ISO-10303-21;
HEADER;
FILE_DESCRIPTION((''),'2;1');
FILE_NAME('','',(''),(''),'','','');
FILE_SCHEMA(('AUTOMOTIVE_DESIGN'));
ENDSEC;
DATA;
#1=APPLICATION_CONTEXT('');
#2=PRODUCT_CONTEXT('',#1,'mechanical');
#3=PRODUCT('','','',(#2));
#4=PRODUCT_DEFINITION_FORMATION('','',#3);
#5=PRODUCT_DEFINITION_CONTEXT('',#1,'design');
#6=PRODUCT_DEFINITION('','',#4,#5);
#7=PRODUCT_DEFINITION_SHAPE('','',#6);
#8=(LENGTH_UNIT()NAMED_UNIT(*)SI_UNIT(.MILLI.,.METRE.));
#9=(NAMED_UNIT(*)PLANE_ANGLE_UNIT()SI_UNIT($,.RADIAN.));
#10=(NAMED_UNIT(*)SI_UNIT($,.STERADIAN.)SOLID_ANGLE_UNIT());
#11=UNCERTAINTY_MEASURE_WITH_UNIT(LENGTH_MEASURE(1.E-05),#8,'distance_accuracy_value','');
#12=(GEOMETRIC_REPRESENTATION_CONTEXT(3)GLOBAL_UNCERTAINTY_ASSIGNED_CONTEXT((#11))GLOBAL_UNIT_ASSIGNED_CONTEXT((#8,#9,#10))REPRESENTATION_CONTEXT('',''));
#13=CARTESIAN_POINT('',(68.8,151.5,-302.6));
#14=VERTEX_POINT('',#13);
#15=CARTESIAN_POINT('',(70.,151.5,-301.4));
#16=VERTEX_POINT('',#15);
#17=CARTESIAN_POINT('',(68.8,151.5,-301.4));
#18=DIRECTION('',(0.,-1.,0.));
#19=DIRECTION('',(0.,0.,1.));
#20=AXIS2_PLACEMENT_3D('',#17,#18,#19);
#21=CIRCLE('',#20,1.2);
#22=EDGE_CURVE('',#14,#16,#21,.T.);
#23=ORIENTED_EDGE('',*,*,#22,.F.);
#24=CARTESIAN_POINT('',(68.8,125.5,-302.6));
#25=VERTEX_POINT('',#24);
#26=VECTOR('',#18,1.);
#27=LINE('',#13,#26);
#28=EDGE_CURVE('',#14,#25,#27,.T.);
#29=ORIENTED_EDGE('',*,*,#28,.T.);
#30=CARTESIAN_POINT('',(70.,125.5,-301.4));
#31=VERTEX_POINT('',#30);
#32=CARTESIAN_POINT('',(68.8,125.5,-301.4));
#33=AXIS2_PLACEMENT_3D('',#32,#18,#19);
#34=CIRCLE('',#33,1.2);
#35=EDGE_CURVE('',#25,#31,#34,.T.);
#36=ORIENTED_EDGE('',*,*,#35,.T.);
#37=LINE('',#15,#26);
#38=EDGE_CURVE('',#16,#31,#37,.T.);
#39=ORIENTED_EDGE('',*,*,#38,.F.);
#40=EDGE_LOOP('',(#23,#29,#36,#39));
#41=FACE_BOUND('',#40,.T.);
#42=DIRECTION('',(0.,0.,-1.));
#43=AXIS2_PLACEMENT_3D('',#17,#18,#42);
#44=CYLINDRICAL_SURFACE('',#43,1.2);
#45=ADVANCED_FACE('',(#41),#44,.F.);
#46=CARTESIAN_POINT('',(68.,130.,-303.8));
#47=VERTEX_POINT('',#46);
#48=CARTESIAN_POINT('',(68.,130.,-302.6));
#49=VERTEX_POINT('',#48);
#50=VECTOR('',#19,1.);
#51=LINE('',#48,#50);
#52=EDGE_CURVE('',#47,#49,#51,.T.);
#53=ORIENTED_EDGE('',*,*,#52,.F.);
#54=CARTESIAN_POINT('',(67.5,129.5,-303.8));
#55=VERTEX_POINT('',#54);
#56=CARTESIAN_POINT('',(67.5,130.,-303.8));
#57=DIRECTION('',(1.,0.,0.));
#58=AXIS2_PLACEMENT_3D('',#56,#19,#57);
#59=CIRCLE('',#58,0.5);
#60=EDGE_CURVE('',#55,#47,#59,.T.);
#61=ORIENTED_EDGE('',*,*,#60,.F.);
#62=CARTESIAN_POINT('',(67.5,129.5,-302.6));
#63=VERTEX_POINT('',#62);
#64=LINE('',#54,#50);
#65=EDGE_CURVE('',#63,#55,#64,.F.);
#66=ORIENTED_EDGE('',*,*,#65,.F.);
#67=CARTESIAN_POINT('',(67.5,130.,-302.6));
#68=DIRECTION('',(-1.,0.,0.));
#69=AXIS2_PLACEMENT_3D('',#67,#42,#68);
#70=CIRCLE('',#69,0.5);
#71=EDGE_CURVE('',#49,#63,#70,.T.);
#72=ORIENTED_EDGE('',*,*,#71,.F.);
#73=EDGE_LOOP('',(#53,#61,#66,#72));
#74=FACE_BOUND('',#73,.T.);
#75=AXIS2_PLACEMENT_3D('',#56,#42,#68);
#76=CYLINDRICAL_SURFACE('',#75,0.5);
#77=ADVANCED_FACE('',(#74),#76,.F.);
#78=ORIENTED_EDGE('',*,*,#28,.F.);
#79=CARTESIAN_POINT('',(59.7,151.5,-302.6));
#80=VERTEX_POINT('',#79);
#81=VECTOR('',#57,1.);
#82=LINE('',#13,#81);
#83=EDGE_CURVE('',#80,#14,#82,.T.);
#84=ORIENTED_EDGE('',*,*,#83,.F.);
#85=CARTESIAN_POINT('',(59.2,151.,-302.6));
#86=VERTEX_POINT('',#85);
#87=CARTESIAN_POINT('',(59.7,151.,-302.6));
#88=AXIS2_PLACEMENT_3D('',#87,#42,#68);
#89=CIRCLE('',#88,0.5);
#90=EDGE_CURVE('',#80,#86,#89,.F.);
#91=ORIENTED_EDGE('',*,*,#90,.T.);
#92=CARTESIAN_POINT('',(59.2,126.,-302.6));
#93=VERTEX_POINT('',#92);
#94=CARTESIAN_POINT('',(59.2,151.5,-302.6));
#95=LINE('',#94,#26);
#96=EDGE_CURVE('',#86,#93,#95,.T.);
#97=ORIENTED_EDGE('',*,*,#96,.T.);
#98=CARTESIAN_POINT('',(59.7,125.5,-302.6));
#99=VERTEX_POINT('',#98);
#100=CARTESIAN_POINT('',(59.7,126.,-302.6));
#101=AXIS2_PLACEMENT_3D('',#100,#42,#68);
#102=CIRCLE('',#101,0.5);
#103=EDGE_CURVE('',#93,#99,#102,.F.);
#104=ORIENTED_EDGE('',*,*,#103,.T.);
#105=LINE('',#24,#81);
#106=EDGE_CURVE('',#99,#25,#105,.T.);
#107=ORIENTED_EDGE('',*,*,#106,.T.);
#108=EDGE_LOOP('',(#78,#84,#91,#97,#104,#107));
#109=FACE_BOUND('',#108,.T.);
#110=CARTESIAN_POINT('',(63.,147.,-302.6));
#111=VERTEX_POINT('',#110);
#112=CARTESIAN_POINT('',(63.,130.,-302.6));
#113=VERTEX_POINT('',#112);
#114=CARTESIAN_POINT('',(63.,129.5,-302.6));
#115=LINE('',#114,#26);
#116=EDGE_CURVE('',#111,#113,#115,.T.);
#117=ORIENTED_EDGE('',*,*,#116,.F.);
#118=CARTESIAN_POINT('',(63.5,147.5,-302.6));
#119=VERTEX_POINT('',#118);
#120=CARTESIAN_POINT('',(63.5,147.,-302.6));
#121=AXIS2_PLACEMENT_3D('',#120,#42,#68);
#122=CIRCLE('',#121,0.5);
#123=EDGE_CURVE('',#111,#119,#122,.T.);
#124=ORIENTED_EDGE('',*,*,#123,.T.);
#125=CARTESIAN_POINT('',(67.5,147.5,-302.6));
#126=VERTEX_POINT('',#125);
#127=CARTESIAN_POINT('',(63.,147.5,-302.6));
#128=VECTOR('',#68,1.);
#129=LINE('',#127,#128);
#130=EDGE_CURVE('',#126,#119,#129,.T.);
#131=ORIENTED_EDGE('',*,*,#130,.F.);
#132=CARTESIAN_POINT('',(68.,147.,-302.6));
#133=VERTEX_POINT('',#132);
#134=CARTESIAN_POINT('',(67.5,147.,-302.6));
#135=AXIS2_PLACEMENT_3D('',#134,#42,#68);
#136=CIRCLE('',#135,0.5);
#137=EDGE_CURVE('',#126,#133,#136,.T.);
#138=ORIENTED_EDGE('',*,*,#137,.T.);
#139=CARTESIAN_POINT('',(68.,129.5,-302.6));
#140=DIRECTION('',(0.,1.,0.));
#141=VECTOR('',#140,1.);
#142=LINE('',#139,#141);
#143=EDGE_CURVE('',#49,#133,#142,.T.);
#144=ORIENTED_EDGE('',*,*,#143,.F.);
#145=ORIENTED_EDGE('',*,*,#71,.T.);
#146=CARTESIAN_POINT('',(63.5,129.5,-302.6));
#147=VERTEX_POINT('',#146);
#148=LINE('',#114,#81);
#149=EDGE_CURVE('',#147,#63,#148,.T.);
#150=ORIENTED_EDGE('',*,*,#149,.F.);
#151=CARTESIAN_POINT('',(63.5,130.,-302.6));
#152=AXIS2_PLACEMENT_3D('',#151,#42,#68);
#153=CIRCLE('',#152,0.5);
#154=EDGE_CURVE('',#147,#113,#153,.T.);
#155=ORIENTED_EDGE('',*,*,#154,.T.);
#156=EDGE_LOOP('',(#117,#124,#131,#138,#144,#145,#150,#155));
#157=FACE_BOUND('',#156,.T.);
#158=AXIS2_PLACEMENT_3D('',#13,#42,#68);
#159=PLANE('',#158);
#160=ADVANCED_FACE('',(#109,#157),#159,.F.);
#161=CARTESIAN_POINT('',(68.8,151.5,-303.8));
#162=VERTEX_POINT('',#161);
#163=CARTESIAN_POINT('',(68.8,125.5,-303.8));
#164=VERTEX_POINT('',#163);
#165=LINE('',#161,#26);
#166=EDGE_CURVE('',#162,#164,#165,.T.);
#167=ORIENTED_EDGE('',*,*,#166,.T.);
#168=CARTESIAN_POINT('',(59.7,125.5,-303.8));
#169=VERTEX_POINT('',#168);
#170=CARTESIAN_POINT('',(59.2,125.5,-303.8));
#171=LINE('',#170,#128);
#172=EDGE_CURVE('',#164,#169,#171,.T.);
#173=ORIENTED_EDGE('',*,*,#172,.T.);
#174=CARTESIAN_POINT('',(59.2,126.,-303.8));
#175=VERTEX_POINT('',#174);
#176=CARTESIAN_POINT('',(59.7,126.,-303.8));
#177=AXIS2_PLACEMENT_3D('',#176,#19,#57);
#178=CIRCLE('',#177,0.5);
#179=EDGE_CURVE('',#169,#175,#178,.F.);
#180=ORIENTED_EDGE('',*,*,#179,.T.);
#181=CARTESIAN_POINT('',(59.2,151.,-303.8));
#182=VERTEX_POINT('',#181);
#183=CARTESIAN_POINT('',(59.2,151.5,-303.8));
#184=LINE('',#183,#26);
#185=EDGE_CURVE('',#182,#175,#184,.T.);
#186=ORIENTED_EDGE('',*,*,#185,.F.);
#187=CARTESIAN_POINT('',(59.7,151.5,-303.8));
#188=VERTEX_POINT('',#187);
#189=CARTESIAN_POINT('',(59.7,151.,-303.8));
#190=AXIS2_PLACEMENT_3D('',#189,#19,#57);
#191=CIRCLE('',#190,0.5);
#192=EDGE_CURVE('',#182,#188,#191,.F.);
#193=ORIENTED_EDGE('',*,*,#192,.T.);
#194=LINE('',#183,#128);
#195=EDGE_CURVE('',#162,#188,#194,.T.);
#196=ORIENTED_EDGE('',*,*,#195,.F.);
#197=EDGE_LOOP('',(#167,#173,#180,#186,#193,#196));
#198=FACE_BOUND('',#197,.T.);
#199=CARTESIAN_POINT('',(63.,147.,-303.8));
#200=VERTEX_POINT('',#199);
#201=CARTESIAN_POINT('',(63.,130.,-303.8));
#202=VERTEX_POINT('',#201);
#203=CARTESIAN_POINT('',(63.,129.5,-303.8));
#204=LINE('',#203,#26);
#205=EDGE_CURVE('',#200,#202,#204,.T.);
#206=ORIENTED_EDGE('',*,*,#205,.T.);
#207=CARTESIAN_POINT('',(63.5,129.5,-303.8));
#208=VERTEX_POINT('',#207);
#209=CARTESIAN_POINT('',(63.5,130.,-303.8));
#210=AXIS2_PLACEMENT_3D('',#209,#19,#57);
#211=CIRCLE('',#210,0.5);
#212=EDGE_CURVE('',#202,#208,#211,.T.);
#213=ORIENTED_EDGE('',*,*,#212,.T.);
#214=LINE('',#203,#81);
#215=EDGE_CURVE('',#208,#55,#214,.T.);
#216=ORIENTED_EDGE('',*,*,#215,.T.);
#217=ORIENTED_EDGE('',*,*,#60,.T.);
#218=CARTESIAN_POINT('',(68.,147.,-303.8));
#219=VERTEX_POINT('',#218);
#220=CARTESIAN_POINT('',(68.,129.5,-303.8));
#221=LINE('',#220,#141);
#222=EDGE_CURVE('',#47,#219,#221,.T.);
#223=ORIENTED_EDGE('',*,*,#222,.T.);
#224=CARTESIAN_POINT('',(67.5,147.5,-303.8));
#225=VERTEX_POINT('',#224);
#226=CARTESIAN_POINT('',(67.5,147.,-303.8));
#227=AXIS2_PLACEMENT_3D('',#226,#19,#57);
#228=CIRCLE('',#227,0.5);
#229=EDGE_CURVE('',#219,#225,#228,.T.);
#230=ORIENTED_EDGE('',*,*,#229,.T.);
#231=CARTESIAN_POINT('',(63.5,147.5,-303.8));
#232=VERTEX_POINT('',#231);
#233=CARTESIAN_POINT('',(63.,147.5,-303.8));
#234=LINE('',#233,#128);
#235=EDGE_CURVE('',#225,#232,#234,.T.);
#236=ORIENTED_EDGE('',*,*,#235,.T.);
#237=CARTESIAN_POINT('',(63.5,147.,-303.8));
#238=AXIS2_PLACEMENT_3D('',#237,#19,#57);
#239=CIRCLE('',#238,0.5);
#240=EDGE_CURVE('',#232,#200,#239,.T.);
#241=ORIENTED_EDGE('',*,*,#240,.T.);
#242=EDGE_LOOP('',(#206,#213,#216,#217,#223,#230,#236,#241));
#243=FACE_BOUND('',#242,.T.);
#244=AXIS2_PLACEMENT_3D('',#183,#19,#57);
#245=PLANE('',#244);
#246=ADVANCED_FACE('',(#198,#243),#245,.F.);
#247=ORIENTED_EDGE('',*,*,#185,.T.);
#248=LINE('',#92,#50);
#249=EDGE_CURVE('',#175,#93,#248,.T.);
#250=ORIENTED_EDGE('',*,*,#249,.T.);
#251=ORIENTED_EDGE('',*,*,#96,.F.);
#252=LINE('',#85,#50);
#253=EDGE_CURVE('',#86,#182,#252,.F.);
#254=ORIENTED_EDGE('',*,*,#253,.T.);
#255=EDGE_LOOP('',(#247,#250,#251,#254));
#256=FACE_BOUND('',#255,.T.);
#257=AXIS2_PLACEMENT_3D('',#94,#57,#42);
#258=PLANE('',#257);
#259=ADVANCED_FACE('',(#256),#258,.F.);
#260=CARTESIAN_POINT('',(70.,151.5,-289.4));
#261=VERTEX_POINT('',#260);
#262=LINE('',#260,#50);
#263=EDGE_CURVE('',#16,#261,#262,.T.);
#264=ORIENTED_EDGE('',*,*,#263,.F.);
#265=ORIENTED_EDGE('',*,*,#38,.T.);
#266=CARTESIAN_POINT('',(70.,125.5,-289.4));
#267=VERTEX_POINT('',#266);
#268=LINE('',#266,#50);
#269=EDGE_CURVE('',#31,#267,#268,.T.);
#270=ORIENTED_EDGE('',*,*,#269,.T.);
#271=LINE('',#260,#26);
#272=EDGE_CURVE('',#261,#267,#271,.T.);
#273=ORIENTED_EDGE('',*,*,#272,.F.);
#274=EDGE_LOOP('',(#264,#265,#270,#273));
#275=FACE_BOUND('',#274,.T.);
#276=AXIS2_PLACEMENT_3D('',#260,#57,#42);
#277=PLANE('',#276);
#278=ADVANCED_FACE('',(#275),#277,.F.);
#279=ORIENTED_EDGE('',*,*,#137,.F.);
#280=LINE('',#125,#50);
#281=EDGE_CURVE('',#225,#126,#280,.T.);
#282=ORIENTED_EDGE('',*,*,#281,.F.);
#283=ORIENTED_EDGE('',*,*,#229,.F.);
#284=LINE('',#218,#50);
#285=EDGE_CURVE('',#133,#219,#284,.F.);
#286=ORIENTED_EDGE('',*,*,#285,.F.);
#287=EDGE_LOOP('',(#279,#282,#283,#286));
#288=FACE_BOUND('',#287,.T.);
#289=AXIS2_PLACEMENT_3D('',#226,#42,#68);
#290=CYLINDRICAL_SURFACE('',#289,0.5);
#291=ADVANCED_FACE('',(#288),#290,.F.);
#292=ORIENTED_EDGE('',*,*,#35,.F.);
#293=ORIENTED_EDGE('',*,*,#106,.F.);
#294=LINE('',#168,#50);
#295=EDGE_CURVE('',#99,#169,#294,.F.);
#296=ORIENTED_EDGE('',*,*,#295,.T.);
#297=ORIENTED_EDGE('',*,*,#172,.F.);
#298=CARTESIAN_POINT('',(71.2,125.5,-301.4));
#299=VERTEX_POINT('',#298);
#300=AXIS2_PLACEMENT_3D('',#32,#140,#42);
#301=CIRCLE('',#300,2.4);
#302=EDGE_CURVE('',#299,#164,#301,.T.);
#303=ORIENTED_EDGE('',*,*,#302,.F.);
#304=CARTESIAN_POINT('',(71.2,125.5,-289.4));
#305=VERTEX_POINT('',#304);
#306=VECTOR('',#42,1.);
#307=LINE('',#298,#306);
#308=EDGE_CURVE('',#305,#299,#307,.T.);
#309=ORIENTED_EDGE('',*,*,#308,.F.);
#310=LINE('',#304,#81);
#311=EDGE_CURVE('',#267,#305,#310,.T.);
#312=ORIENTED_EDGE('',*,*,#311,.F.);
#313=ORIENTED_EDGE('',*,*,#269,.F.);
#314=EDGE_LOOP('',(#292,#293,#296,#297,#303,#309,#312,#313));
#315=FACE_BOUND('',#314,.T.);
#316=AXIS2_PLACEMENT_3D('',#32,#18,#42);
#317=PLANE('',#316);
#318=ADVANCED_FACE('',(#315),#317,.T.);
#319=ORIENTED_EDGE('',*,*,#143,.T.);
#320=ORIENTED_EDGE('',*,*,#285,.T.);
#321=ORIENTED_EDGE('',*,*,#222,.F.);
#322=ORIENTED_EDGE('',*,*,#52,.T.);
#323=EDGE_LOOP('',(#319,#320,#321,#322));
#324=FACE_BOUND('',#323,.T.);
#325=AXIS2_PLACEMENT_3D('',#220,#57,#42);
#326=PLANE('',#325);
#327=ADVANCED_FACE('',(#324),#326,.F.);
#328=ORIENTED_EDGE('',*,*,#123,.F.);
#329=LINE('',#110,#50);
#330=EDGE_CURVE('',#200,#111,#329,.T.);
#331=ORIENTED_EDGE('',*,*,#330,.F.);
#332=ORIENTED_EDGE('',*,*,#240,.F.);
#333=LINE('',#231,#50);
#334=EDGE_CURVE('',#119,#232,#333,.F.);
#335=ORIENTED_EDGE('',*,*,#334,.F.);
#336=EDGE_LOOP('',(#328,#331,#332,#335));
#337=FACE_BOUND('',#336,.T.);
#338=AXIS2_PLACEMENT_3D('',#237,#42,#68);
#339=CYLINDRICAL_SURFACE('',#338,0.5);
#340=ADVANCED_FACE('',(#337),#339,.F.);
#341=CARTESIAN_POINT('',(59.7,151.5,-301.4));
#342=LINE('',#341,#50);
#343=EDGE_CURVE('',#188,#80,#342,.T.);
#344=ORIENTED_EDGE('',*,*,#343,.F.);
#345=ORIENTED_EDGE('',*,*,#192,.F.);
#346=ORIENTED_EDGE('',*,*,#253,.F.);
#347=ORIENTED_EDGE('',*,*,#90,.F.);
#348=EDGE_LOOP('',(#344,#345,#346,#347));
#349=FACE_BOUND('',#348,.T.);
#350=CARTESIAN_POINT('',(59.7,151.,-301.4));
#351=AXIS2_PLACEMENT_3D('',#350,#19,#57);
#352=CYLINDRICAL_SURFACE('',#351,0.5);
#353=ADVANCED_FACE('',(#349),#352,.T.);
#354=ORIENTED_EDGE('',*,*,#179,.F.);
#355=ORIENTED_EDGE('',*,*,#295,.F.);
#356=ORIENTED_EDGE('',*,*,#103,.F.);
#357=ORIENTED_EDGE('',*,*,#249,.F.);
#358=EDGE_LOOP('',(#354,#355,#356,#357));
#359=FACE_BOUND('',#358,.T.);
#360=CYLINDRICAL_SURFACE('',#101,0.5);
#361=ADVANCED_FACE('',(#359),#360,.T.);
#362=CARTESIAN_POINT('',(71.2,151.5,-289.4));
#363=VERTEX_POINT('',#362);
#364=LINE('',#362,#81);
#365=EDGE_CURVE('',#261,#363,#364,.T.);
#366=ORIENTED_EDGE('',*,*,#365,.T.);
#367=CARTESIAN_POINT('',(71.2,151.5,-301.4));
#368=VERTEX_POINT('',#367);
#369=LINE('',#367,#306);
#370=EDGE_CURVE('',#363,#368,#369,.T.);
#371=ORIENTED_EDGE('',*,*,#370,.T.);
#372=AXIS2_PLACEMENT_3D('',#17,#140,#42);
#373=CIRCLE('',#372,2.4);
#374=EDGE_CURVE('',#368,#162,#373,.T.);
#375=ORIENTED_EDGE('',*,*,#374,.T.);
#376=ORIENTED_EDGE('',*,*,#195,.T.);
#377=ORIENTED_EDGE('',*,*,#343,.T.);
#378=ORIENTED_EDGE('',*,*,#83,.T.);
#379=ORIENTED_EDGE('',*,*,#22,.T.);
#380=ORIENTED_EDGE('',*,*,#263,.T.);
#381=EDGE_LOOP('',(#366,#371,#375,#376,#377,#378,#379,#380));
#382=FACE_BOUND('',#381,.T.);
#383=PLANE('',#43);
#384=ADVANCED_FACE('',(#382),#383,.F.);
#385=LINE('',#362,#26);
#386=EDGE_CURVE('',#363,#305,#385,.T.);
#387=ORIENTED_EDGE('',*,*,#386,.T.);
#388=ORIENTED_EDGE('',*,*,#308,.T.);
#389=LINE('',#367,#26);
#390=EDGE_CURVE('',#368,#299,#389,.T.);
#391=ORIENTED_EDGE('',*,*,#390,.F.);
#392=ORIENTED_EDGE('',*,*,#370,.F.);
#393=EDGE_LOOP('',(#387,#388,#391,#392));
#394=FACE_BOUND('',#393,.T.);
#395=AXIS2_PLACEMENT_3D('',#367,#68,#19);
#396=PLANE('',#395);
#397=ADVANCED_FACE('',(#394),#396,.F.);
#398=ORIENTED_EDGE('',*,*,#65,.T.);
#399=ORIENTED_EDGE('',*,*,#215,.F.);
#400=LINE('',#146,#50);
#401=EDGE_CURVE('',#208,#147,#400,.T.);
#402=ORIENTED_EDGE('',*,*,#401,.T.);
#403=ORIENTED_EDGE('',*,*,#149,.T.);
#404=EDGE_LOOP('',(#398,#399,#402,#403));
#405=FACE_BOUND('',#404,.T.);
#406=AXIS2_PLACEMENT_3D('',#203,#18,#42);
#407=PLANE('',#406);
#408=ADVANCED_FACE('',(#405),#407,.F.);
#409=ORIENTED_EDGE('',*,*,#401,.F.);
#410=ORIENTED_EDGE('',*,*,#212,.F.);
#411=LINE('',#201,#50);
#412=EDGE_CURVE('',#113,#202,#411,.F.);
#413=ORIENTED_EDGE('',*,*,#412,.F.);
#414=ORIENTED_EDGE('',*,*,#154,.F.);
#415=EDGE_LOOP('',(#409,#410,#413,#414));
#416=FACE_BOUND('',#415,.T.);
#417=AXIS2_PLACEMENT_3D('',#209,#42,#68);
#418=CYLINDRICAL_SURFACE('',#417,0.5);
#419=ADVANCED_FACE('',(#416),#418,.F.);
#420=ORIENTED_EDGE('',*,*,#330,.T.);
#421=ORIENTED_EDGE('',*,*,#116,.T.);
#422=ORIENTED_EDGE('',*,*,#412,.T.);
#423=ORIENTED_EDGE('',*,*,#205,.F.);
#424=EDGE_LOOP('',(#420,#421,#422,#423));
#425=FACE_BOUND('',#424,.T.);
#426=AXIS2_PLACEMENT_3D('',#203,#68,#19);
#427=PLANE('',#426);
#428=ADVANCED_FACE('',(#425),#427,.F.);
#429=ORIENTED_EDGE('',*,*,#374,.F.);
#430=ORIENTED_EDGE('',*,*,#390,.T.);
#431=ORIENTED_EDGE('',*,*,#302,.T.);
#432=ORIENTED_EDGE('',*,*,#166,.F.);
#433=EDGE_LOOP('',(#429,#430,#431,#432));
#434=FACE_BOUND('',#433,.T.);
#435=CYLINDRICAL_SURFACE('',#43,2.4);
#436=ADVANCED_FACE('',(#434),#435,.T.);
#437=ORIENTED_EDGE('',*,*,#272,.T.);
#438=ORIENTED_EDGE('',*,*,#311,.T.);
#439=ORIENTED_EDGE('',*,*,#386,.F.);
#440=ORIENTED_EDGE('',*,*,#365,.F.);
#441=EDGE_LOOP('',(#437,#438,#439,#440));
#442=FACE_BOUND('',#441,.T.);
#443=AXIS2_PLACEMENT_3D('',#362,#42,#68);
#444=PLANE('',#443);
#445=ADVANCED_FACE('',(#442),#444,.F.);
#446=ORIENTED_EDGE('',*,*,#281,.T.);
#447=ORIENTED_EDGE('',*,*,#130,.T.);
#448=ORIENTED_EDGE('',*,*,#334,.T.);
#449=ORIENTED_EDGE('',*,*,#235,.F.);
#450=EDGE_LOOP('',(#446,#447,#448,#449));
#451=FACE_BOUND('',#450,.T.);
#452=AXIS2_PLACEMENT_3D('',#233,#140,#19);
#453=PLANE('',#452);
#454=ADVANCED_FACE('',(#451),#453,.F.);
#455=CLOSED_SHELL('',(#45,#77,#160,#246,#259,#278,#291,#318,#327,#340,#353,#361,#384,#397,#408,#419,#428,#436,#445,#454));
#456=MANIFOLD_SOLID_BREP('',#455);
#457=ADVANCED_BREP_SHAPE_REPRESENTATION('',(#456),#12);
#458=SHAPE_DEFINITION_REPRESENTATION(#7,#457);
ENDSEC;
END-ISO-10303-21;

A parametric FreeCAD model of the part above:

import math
import FreeCAD as App
import Part
import Sketcher
Q = App.Units.Quantity


def edges_at(feature, points):
    """Names of the edges that pass closest to the given points."""
    edges = feature.Shape.Edges
    near = lambda p: min(range(len(edges)), key=lambda i: edges[i].distToShape(Part.Vertex(*p))[0])
    return sorted({f"Edge{near(p) + 1}" for p in points})


def add_polygon(sketch, points):
    """Adds a closed chain of lines whose ends are joined by coincident constraints."""
    first, n = sketch.GeometryCount, len(points)
    for a, b in zip(points, points[1:] + points[:1]):
        sketch.addGeometry(Part.LineSegment(App.Vector(*a, 0), App.Vector(*b, 0)), False)
    for i in range(n):
        sketch.addConstraint(Sketcher.Constraint("Coincident", first + i, 2, first + (i + 1) % n, 1))

doc = App.newDocument("Part")
body = doc.addObject("PartDesign::Body", "Body")

sketch1 = body.newObject("Sketcher::SketchObject", "Sketch")
sketch1.AttachmentSupport = (doc.getObject("XZ_Plane"), [""])
sketch1.MapMode = "FlatFace"
sketch1.AttachmentOffset = App.Placement(App.Vector(0, 0, -125.5), App.Rotation())
sketch1.addGeometry(Part.LineSegment(App.Vector(68.8, -303.8, 0), App.Vector(59.2, -303.8, 0)), False)
sketch1.addGeometry(Part.LineSegment(App.Vector(59.2, -303.8, 0), App.Vector(59.2, -302.6, 0)), False)
sketch1.addGeometry(Part.LineSegment(App.Vector(59.2, -302.6, 0), App.Vector(68.8, -302.6, 0)), False)
sketch1.addGeometry(Part.ArcOfCircle(Part.Circle(App.Vector(68.8, -301.4, 0), App.Vector(0, 0, 1), 1.2), math.radians(-90), math.radians(0)), False)
sketch1.addGeometry(Part.LineSegment(App.Vector(70, -301.4, 0), App.Vector(70, -289.4, 0)), False)
sketch1.addGeometry(Part.LineSegment(App.Vector(70, -289.4, 0), App.Vector(71.2, -289.4, 0)), False)
sketch1.addGeometry(Part.LineSegment(App.Vector(71.2, -289.4, 0), App.Vector(71.2, -301.4, 0)), False)
sketch1.addGeometry(Part.ArcOfCircle(Part.Circle(App.Vector(68.8, -301.4, 0), App.Vector(0, 0, 1), 2.4), math.radians(-90), math.radians(0)), False)
sketch1.addConstraint(Sketcher.Constraint("Coincident", 0, 2, 1, 1))
sketch1.addConstraint(Sketcher.Constraint("Coincident", 1, 2, 2, 1))
sketch1.addConstraint(Sketcher.Constraint("Tangent", 2, 2, 3, 1))
sketch1.addConstraint(Sketcher.Constraint("Tangent", 3, 2, 4, 1))
sketch1.addConstraint(Sketcher.Constraint("Coincident", 4, 2, 5, 1))
sketch1.addConstraint(Sketcher.Constraint("Coincident", 5, 2, 6, 1))
sketch1.addConstraint(Sketcher.Constraint("Tangent", 6, 2, 7, 2))
sketch1.addConstraint(Sketcher.Constraint("Tangent", 7, 1, 0, 1))
sketch1.addConstraint(Sketcher.Constraint("Horizontal", 0))
sketch1.addConstraint(Sketcher.Constraint("Vertical", 1))
sketch1.addConstraint(Sketcher.Constraint("Horizontal", 2))
sketch1.addConstraint(Sketcher.Constraint("Vertical", 4))
sketch1.addConstraint(Sketcher.Constraint("Horizontal", 5))
sketch1.addConstraint(Sketcher.Constraint("Vertical", 6))
sketch1.addConstraint(Sketcher.Constraint("Coincident", 7, 3, 3, 3))
sketch1.addConstraint(Sketcher.Constraint("Radius", 3, Q("1.2 mm")))
sketch1.addConstraint(Sketcher.Constraint("Radius", 7, Q("2.4 mm")))
sketch1.addConstraint(Sketcher.Constraint("DistanceY", 4, 1, 4, 2, Q("12 mm")))
sketch1.addConstraint(Sketcher.Constraint("DistanceX", 0, 2, 0, 1, Q("9.6 mm")))
sketch1.addConstraint(Sketcher.Constraint("DistanceX", -1, 1, 3, 2, Q("70 mm")))
sketch1.addConstraint(Sketcher.Constraint("DistanceY", 3, 3, -1, 1, Q("301.4 mm")))
pad1 = body.newObject("PartDesign::Pad", "Pad")
pad1.Profile = sketch1
pad1.Length = 26
pad1.Reversed = True

sketch2 = body.newObject("Sketcher::SketchObject", "Sketch001")
sketch2.AttachmentSupport = (doc.getObject("XY_Plane"), [""])
sketch2.MapMode = "FlatFace"
sketch2.AttachmentOffset = App.Placement(App.Vector(0, 0, -302.6), App.Rotation())
add_polygon(sketch2, [(63, 148), (63, 130), (68, 130), (68, 148)])
sketch2.addConstraint(Sketcher.Constraint("Vertical", 0))
sketch2.addConstraint(Sketcher.Constraint("Horizontal", 1))
sketch2.addConstraint(Sketcher.Constraint("Vertical", 2))
sketch2.addConstraint(Sketcher.Constraint("Horizontal", 3))
sketch2.addConstraint(Sketcher.Constraint("DistanceX", 1, 1, 1, 2, Q("5 mm")))
sketch2.addConstraint(Sketcher.Constraint("DistanceY", 0, 2, 0, 1, Q("18 mm")))
sketch2.addConstraint(Sketcher.Constraint("DistanceX", -1, 1, 0, 2, Q("63 mm")))
sketch2.addConstraint(Sketcher.Constraint("DistanceY", -1, 1, 0, 2, Q("129.5 mm")))
pocket1 = body.newObject("PartDesign::Pocket", "Pocket")
pocket1.Profile = sketch2
pocket1.Length = 1.2
doc.recompute()

fillet = body.newObject("PartDesign::Fillet", "Fillet")
fillet.Base = (pocket1, edges_at(pocket1, [
    (68, 147.5, -303.2),
    (68, 129.5, -303.2),
    (63, 129.5, -303.2),
    (63, 147.5, -303.2),
]))
fillet.Radius = 0.5
doc.recompute()

fillet2 = body.newObject("PartDesign::Fillet", "Fillet001")
fillet2.Base = (fillet, edges_at(fillet, [(59.2, 125.5, -303.2), (59.2, 151.5, -303.2)]))
fillet2.Radius = 0.5

doc.recompute()
